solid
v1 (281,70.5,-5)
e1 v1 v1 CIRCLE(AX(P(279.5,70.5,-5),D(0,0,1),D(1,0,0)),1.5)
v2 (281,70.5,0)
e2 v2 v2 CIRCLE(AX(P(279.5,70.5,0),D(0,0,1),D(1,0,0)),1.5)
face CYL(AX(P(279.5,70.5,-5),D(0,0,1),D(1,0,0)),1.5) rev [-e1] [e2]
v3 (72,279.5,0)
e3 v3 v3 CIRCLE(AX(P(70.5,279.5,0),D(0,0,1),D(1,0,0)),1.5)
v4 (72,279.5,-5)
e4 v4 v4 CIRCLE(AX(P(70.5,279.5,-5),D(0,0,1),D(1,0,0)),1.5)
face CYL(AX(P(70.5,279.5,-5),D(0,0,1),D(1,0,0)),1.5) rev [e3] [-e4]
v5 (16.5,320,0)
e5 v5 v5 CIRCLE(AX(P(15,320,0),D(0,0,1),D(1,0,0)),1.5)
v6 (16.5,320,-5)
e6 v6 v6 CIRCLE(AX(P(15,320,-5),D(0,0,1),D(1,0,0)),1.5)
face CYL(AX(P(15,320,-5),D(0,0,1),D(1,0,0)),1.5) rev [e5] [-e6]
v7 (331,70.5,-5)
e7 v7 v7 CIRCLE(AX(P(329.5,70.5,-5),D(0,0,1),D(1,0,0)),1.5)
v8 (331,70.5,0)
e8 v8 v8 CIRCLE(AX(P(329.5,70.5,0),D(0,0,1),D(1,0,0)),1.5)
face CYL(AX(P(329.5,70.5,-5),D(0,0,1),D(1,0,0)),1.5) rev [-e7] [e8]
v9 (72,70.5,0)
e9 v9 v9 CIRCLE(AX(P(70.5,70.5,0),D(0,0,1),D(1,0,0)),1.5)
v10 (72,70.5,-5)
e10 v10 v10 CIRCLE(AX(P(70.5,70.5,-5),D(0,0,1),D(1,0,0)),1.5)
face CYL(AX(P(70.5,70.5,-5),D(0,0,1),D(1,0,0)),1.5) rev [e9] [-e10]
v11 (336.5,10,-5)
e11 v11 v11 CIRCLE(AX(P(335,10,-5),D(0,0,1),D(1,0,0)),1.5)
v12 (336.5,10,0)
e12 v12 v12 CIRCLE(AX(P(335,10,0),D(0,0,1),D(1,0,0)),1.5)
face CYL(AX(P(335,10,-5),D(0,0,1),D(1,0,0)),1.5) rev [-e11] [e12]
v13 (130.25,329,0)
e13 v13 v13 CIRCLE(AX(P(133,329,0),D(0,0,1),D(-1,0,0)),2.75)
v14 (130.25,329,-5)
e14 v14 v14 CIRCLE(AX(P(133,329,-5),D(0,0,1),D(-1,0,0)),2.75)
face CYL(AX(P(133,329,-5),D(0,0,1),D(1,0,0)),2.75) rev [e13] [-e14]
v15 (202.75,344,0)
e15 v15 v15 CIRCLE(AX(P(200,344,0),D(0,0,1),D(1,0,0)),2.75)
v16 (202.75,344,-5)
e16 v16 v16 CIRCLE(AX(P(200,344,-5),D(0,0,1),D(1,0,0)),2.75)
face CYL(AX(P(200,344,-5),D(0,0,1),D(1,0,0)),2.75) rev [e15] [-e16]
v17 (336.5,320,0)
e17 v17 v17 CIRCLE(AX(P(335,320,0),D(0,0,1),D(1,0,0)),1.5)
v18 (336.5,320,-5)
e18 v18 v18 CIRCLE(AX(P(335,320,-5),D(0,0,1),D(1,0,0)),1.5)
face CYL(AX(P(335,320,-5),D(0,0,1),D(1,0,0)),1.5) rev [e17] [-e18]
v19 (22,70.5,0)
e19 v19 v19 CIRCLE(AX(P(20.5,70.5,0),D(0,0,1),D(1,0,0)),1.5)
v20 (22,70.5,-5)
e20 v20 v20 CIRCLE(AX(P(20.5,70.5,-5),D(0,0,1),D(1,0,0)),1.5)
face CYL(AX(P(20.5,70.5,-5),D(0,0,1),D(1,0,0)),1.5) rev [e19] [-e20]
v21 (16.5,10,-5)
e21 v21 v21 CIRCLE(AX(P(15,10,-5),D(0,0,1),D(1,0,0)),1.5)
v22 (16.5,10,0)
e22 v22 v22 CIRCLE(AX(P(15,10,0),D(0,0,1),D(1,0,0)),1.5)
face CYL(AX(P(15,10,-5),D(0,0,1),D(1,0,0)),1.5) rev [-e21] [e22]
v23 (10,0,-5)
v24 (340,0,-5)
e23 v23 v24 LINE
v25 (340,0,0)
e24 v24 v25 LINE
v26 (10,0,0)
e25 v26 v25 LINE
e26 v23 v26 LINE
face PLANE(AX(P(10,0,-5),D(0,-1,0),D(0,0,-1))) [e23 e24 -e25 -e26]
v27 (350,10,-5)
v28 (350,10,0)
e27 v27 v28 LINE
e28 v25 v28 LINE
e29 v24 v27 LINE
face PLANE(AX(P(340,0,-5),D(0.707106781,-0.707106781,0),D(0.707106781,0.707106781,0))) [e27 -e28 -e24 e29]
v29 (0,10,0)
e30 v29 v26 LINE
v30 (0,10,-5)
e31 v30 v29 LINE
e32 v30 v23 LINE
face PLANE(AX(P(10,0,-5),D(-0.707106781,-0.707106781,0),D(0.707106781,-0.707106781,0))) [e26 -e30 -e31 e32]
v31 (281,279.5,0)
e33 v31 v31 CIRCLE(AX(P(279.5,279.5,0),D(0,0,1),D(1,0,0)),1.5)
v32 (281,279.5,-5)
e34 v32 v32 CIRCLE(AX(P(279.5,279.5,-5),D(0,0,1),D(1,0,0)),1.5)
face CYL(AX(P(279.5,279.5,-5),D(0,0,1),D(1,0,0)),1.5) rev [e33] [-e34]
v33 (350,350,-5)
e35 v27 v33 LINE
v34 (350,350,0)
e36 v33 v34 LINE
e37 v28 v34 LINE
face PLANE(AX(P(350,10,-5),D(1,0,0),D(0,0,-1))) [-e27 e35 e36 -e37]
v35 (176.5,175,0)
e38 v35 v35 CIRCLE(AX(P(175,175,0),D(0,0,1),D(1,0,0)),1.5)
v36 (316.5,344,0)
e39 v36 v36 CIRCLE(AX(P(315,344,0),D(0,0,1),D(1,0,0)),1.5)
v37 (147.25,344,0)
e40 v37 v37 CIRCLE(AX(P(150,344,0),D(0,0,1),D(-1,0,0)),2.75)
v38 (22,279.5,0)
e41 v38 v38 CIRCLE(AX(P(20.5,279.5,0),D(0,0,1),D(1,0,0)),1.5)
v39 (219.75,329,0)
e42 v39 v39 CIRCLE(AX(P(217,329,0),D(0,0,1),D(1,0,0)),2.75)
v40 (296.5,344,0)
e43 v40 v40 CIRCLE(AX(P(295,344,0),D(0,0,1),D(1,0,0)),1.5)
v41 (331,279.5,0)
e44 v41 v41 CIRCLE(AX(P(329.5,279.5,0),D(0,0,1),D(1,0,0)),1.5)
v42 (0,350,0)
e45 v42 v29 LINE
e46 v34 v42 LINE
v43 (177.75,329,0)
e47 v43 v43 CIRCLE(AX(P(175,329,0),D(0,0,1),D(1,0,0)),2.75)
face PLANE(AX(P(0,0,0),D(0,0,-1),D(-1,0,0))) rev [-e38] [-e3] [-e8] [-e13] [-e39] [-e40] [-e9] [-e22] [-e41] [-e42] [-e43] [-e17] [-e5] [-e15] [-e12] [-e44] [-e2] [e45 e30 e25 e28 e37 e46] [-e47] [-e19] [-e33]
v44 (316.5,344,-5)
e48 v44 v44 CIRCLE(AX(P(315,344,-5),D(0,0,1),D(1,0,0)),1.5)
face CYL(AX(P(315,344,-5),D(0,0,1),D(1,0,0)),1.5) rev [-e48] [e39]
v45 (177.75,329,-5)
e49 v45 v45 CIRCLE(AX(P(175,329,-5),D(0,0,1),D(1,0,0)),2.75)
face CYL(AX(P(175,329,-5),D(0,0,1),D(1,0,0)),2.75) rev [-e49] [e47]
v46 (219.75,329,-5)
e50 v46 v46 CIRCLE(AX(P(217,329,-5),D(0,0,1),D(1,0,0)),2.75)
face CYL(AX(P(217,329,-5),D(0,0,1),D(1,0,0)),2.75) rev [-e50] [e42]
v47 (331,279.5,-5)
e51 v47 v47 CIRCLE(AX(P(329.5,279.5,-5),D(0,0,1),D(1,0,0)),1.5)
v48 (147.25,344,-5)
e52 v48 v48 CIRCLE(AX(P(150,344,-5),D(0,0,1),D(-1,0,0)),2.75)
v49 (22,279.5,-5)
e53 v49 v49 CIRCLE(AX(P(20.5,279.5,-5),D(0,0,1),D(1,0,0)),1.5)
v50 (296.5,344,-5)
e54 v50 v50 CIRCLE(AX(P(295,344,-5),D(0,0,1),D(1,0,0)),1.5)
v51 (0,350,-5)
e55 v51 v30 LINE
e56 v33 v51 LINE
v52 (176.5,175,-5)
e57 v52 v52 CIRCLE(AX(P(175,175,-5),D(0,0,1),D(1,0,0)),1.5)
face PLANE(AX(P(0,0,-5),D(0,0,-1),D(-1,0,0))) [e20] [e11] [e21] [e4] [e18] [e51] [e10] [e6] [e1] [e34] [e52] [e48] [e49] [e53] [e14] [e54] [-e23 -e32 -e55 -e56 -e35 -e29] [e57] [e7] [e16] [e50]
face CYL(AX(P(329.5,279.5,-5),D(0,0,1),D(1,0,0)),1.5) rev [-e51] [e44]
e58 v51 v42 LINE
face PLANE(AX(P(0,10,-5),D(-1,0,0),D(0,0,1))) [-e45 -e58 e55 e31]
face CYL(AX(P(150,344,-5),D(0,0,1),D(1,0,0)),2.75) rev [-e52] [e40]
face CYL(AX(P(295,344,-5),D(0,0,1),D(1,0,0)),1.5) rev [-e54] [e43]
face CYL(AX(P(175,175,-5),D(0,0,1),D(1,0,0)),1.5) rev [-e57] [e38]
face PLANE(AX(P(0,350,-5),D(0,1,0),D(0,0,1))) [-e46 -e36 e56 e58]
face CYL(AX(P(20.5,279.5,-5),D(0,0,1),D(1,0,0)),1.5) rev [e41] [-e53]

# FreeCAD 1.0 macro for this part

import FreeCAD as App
import Part
import Sketcher
Q = App.Units.Quantity


def add_polygon(sketch, points):
    """Adds a closed chain of lines whose ends are joined by coincident constraints."""
    first, n = sketch.GeometryCount, len(points)
    for a, b in zip(points, points[1:] + points[:1]):
        sketch.addGeometry(Part.LineSegment(App.Vector(*a, 0), App.Vector(*b, 0)), False)
    for i in range(n):
        sketch.addConstraint(Sketcher.Constraint("Coincident", first + i, 2, first + (i + 1) % n, 1))

doc = App.newDocument("Part")
body = doc.addObject("PartDesign::Body", "Body")

# Sketch on XY plane
sketch1 = body.newObject("Sketcher::SketchObject", "Sketch")
sketch1.AttachmentSupport = (doc.getObject("XY_Plane"), [""])
sketch1.MapMode = "FlatFace"
add_polygon(sketch1, [(10, 0), (340, 0), (350, 10), (350, 350), (0, 350), (0, 10)])  # lines 0-5
sketch1.addGeometry(Part.Circle(App.Vector(15, 10, 0), App.Vector(0, 0, 1), 1.5), False)  # 6
sketch1.addGeometry(Part.Circle(App.Vector(20.5, 70.5, 0), App.Vector(0, 0, 1), 1.5), False)  # 7
sketch1.addGeometry(Part.Circle(App.Vector(70.5, 70.5, 0), App.Vector(0, 0, 1), 1.5), False)  # 8
sketch1.addGeometry(Part.Circle(App.Vector(335, 10, 0), App.Vector(0, 0, 1), 1.5), False)  # 9
sketch1.addGeometry(Part.Circle(App.Vector(279.5, 70.5, 0), App.Vector(0, 0, 1), 1.5), False)  # 10
sketch1.addGeometry(Part.Circle(App.Vector(329.5, 70.5, 0), App.Vector(0, 0, 1), 1.5), False)  # 11
sketch1.addGeometry(Part.Circle(App.Vector(175, 175, 0), App.Vector(0, 0, 1), 1.5), False)  # 12
sketch1.addGeometry(Part.Circle(App.Vector(20.5, 279.5, 0), App.Vector(0, 0, 1), 1.5), False)  # 13
sketch1.addGeometry(Part.Circle(App.Vector(70.5, 279.5, 0), App.Vector(0, 0, 1), 1.5), False)  # 14
sketch1.addGeometry(Part.Circle(App.Vector(15, 320, 0), App.Vector(0, 0, 1), 1.5), False)  # 15
sketch1.addGeometry(Part.Circle(App.Vector(133, 329, 0), App.Vector(0, 0, 1), 2.8), False)  # 16
sketch1.addGeometry(Part.Circle(App.Vector(150, 344, 0), App.Vector(0, 0, 1), 2.8), False)  # 17
sketch1.addGeometry(Part.Circle(App.Vector(175, 329, 0), App.Vector(0, 0, 1), 2.8), False)  # 18
sketch1.addGeometry(Part.Circle(App.Vector(200, 344, 0), App.Vector(0, 0, 1), 2.8), False)  # 19
sketch1.addGeometry(Part.Circle(App.Vector(217, 329, 0), App.Vector(0, 0, 1), 2.8), False)  # 20
sketch1.addGeometry(Part.Circle(App.Vector(279.5, 279.5, 0), App.Vector(0, 0, 1), 1.5), False)  # 21
sketch1.addGeometry(Part.Circle(App.Vector(329.5, 279.5, 0), App.Vector(0, 0, 1), 1.5), False)  # 22
sketch1.addGeometry(Part.Circle(App.Vector(295, 344, 0), App.Vector(0, 0, 1), 1.5), False)  # 23
sketch1.addGeometry(Part.Circle(App.Vector(335, 320, 0), App.Vector(0, 0, 1), 1.5), False)  # 24
sketch1.addGeometry(Part.Circle(App.Vector(315, 344, 0), App.Vector(0, 0, 1), 1.5), False)  # 25
sketch1.addConstraint([
    Sketcher.Constraint("Horizontal", 0),
    Sketcher.Constraint("Vertical", 2),
    Sketcher.Constraint("Horizontal", 3),
    Sketcher.Constraint("Vertical", 4),
    Sketcher.Constraint("Equal", 6, 7),
    Sketcher.Constraint("Equal", 7, 8),
    Sketcher.Constraint("Equal", 8, 9),
    Sketcher.Constraint("Equal", 9, 10),
    Sketcher.Constraint("Equal", 10, 11),
    Sketcher.Constraint("Equal", 11, 12),
    Sketcher.Constraint("Equal", 12, 13),
    Sketcher.Constraint("Equal", 13, 14),
    Sketcher.Constraint("Equal", 14, 15),
    Sketcher.Constraint("Equal", 16, 17),
    Sketcher.Constraint("Equal", 17, 18),
    Sketcher.Constraint("Equal", 18, 19),
    Sketcher.Constraint("Equal", 19, 20),
    Sketcher.Constraint("Equal", 15, 21),
    Sketcher.Constraint("Equal", 21, 22),
    Sketcher.Constraint("Equal", 22, 23),
    Sketcher.Constraint("Equal", 23, 24),
    Sketcher.Constraint("Equal", 24, 25),
    Sketcher.Constraint("PointOnObject", 0, 2, -1),
    Sketcher.Constraint("PointOnObject", 3, 2, -2),
    Sketcher.Constraint("Perpendicular", 1, 5),
    Sketcher.Constraint("Horizontal", 7, 3, 8, 3),
    Sketcher.Constraint("Horizontal", 6, 3, 9, 3),
    Sketcher.Constraint("Horizontal", 8, 3, 10, 3),
    Sketcher.Constraint("Horizontal", 10, 3, 11, 3),
    Sketcher.Constraint("Horizontal", 13, 3, 14, 3),
    Sketcher.Constraint("Horizontal", 16, 3, 18, 3),
    Sketcher.Constraint("Horizontal", 17, 3, 19, 3),
    Sketcher.Constraint("Horizontal", 18, 3, 20, 3),
    Sketcher.Constraint("Horizontal", 14, 3, 21, 3),
    Sketcher.Constraint("Horizontal", 21, 3, 22, 3),
    Sketcher.Constraint("Horizontal", 19, 3, 23, 3),
    Sketcher.Constraint("Horizontal", 15, 3, 24, 3),
    Sketcher.Constraint("Horizontal", 23, 3, 25, 3),
    Sketcher.Constraint("Horizontal", 9, 3, 1, 2),
    Sketcher.Constraint("Horizontal", 1, 2, 4, 2),
    Sketcher.Constraint("Vertical", 7, 3, 13, 3),
    Sketcher.Constraint("Vertical", 8, 3, 14, 3),
    Sketcher.Constraint("Vertical", 6, 3, 15, 3),
    Sketcher.Constraint("Vertical", 12, 3, 18, 3),
    Sketcher.Constraint("Vertical", 10, 3, 21, 3),
    Sketcher.Constraint("Vertical", 11, 3, 22, 3),
    Sketcher.Constraint("Vertical", 9, 3, 24, 3),
    Sketcher.Constraint("Equal", 1, 5),
    Sketcher.Constraint("Diameter", 6, Q("3 mm")),
    Sketcher.Constraint("Diameter", 16, Q("5.5 mm")),
    Sketcher.Constraint("DistanceX", 0, 1, 0, 2, Q("330 mm")),
    Sketcher.Constraint("DistanceX", 3, 2, 3, 1, Q("350 mm")),
    Sketcher.Constraint("DistanceY", 2, 1, 2, 2, Q("340 mm")),
    Sketcher.Constraint("DistanceX", -1, 1, 6, 3, Q("15 mm")),
    Sketcher.Constraint("DistanceX", -1, 1, 9, 3, Q("335 mm")),
    Sketcher.Constraint("DistanceX", -1, 1, 12, 3, Q("175 mm")),
    Sketcher.Constraint("DistanceY", -1, 1, 12, 3, Q("175 mm")),
    Sketcher.Constraint("DistanceY", -1, 1, 15, 3, Q("320 mm")),
    Sketcher.Constraint("DistanceX", -1, 1, 16, 3, Q("133 mm")),
    Sketcher.Constraint("DistanceY", -1, 1, 16, 3, Q("329 mm")),
    Sketcher.Constraint("DistanceX", -1, 1, 17, 3, Q("150 mm")),
    Sketcher.Constraint("DistanceY", -1, 1, 17, 3, Q("344 mm")),
    Sketcher.Constraint("DistanceX", -1, 1, 19, 3, Q("200 mm")),
    Sketcher.Constraint("DistanceX", -1, 1, 20, 3, Q("217 mm")),
    Sketcher.Constraint("DistanceX", -1, 1, 23, 3, Q("295 mm")),
    Sketcher.Constraint("DistanceX", -1, 1, 25, 3, Q("315 mm")),
    Sketcher.Constraint("DistanceX", 7, 3, 8, 3, Q("50 mm")),
    Sketcher.Constraint("DistanceX", 8, 3, 10, 3, Q("209 mm")),
    Sketcher.Constraint("DistanceX", 10, 3, 11, 3, Q("50 mm")),
    Sketcher.Constraint("DistanceY", 7, 3, 13, 3, Q("209 mm")),
    Sketcher.Constraint("DistanceX", -1, 1, 7, 3, Q("20.5 mm")),
    Sketcher.Constraint("DistanceY", -1, 1, 7, 3, Q("70.5 mm")),
])
pad1 = body.newObject("PartDesign::Pad", "Pad")
pad1.Profile = sketch1
pad1.Length = 5
pad1.Reversed = True

doc.recompute()
